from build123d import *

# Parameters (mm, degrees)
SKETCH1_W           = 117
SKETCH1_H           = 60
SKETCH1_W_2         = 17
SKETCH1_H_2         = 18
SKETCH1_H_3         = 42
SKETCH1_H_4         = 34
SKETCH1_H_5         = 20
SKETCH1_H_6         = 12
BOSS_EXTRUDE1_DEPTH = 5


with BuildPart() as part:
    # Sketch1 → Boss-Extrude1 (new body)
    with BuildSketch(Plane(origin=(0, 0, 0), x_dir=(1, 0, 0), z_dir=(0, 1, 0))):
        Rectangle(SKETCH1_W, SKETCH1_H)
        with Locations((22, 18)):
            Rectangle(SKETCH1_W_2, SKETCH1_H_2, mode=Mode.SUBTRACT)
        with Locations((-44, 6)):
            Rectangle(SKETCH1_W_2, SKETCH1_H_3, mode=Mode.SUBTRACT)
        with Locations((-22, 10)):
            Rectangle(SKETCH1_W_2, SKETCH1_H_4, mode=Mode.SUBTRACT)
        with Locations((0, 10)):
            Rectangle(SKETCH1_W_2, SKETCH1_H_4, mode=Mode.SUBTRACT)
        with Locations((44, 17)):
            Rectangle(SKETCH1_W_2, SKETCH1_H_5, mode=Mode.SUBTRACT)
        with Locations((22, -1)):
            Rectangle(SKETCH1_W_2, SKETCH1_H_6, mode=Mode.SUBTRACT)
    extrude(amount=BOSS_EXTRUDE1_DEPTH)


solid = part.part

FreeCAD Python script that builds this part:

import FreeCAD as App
import Part
import Sketcher

V = App.Vector


def add_polygon(sketch, points):
    """Adds a closed chain of lines whose ends are joined by coincident constraints."""
    first, n = sketch.GeometryCount, len(points)
    for a, b in zip(points, points[1:] + points[:1]):
        sketch.addGeometry(Part.LineSegment(App.Vector(*a, 0), App.Vector(*b, 0)), False)
    for i in range(n):
        sketch.addConstraint(Sketcher.Constraint("Coincident", first + i, 2, first + (i + 1) % n, 1))

doc = App.newDocument("Part")
body = doc.addObject("PartDesign::Body", "Body")

# Sketch on XZ plane
sketch1 = doc.addObject("Sketcher::SketchObject", "Sketch")
body.addObject(sketch1)
sketch1.AttachmentSupport = (doc.XZ_Plane, [""])
sketch1.MapMode = "FlatFace"
add_polygon(sketch1, [(-58.5, -30), (-58.5, 30), (58.5, 30), (58.5, -30)])  # lines 0-3
add_polygon(sketch1, [(30.5, 7), (13.5, 7), (13.5, -5), (30.5, -5)])  # lines 4-7
add_polygon(sketch1, [(-35.5, 15), (-52.5, 15), (-52.5, -27), (-35.5, -27)])  # lines 8-11
add_polygon(sketch1, [(-13.5, 7), (-30.5, 7), (-30.5, -27), (-13.5, -27)])  # lines 12-15
add_polygon(sketch1, [(8.5, 7), (-8.5, 7), (-8.5, -27), (8.5, -27)])  # lines 16-19
add_polygon(sketch1, [(30.5, -9), (13.5, -9), (13.5, -27), (30.5, -27)])  # lines 20-23
add_polygon(sketch1, [(52.5, -7), (35.5, -7), (35.5, -27), (52.5, -27)])  # lines 24-27
sketch1.addConstraint([
    Sketcher.Constraint("Vertical", 0),
    Sketcher.Constraint("Horizontal", 1),
    Sketcher.Constraint("Vertical", 2),
    Sketcher.Constraint("Horizontal", 3),
    Sketcher.Constraint("Horizontal", 4),
    Sketcher.Constraint("Vertical", 5),
    Sketcher.Constraint("Horizontal", 6),
    Sketcher.Constraint("Vertical", 7),
    Sketcher.Constraint("Horizontal", 8),
    Sketcher.Constraint("Vertical", 9),
    Sketcher.Constraint("Horizontal", 10),
    Sketcher.Constraint("Vertical", 11),
    Sketcher.Constraint("Horizontal", 12),
    Sketcher.Constraint("Vertical", 13),
    Sketcher.Constraint("Horizontal", 14),
    Sketcher.Constraint("Vertical", 15),
    Sketcher.Constraint("Horizontal", 16),
    Sketcher.Constraint("Vertical", 17),
    Sketcher.Constraint("Horizontal", 18),
    Sketcher.Constraint("Vertical", 19),
    Sketcher.Constraint("Horizontal", 20),
    Sketcher.Constraint("Vertical", 21),
    Sketcher.Constraint("Horizontal", 22),
    Sketcher.Constraint("Vertical", 23),
    Sketcher.Constraint("Horizontal", 24),
    Sketcher.Constraint("Vertical", 25),
    Sketcher.Constraint("Horizontal", 26),
    Sketcher.Constraint("Vertical", 27),
    Sketcher.Constraint("Symmetric", 0, 2, 2, 2, -1, 1),
    Sketcher.Constraint("Symmetric", 7, 2, 12, 2, -2),
    Sketcher.Constraint("Symmetric", 14, 2, 21, 2, -2),
    Sketcher.Constraint("Symmetric", 10, 2, 25, 2, -2),
    Sketcher.Constraint("Horizontal", 10, 2, 13, 2),
    Sketcher.Constraint("Horizontal", 15, 2, 16, 2),
    Sketcher.Constraint("Horizontal", 14, 2, 17, 2),
    Sketcher.Constraint("Vertical", 5, 2, 20, 2),
    Sketcher.Constraint("Vertical", 7, 2, 22, 2),
    Sketcher.Constraint("Equal", 6, 8),
    Sketcher.Constraint("Equal", 14, 16),
    Sketcher.Constraint("Equal", 22, 24),
    Sketcher.Constraint("DistanceX", 1, 1, 1, 2, 117.0),
    Sketcher.Constraint("DistanceX", 4, 2, 4, 1, 17.0),
    Sketcher.Constraint("DistanceY", 0, 1, 0, 2, 60.0),
    Sketcher.Constraint("DistanceY", 5, 2, 5, 1, 12.0),
    Sketcher.Constraint("DistanceY", 9, 2, 9, 1, 42.0),
    Sketcher.Constraint("DistanceY", 13, 2, 13, 1, 34.0),
    Sketcher.Constraint("DistanceY", 21, 2, 21, 1, 18.0),
    Sketcher.Constraint("DistanceY", 25, 2, 25, 1, 20.0),
    Sketcher.Constraint("DistanceY", -1, 1, 4, 2, 7.0),
    Sketcher.Constraint("DistanceX", 4, 2, 1, 2, 45.0),
    Sketcher.Constraint("DistanceX", 0, 2, 8, 2, 6.0),
    Sketcher.Constraint("DistanceX", 15, 2, 16, 2, 5.0),
])
pad1 = doc.addObject("PartDesign::Pad", "Pad")
body.addObject(pad1)
pad1.Profile = sketch1
pad1.Length = 5
pad1.Reversed = True

doc.recompute()
